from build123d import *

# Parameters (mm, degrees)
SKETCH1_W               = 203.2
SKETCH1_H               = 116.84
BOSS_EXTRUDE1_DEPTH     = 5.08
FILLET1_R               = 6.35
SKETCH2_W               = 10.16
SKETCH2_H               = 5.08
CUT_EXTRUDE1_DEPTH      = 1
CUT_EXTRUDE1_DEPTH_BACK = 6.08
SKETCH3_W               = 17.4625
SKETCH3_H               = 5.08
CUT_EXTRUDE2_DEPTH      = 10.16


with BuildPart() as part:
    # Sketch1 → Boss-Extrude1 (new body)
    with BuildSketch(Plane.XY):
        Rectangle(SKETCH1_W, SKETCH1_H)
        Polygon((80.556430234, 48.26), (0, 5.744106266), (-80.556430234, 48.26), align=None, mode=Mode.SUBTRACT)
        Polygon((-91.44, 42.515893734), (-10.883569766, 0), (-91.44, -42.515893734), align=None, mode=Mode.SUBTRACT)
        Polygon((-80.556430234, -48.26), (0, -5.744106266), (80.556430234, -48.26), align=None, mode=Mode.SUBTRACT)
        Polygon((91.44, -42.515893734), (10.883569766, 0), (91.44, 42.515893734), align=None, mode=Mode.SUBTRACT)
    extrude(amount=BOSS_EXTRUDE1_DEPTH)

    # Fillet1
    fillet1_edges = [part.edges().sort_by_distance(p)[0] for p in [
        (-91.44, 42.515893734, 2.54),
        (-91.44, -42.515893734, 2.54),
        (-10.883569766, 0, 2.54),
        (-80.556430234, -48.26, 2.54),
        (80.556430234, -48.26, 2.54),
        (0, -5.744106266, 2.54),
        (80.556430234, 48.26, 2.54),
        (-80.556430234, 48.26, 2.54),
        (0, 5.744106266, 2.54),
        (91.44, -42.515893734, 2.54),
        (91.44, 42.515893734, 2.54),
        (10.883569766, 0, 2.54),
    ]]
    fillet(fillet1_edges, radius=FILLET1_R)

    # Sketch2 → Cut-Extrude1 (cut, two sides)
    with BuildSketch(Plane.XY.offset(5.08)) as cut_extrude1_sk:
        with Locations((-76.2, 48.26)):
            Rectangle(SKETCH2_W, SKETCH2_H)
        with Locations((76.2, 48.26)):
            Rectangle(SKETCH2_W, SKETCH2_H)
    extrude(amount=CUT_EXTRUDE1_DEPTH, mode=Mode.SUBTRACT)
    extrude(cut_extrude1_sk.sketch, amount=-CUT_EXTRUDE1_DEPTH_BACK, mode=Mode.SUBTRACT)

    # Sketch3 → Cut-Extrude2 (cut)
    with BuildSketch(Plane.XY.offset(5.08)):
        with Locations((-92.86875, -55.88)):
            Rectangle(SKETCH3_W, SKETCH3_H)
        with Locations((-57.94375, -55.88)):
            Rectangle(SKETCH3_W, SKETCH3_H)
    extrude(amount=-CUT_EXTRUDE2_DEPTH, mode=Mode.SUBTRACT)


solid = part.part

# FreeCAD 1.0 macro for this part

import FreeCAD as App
import Part
import Sketcher
from FreeCAD import Vector
Q = App.Units.Quantity


def edges_at(feature, points):
    """Names of the edges that pass closest to the given points."""
    edges = feature.Shape.Edges
    near = lambda p: min(range(len(edges)), key=lambda i: edges[i].distToShape(Part.Vertex(*p))[0])
    return sorted({f"Edge{near(p) + 1}" for p in points})


def add_polygon(sketch, points):
    """Adds a closed chain of lines whose ends are joined by coincident constraints."""
    first, n = sketch.GeometryCount, len(points)
    for a, b in zip(points, points[1:] + points[:1]):
        sketch.addGeometry(Part.LineSegment(App.Vector(*a, 0), App.Vector(*b, 0)), False)
    for i in range(n):
        sketch.addConstraint(Sketcher.Constraint("Coincident", first + i, 2, first + (i + 1) % n, 1))

doc = App.newDocument("Part")
body = doc.addObject("PartDesign::Body", "Body")

# Sketch on XY plane
sketch1 = body.newObject("Sketcher::SketchObject", "Sketch")
sketch1.AttachmentSupport = (doc.getObject("XY_Plane"), [""])
sketch1.MapMode = "FlatFace"
add_polygon(sketch1, [(-102, 58), (-102, -58), (102, -58), (102, 58)])  # lines 0-3
add_polygon(sketch1, [(81, -48), (-81, -48), (0, -6)])  # lines 4-6
add_polygon(sketch1, [(-91, -43), (-91, 43), (-11, 0)])  # lines 7-9
add_polygon(sketch1, [(91, 43), (91, -43), (11, 0)])  # lines 10-12
add_polygon(sketch1, [(-81, 48), (81, 48), (0, 6)])  # lines 13-15
sketch1.addConstraint([
    Sketcher.Constraint("Vertical", 0),
    Sketcher.Constraint("Horizontal", 1),
    Sketcher.Constraint("Vertical", 2),
    Sketcher.Constraint("Horizontal", 3),
    Sketcher.Constraint("Horizontal", 4),
    Sketcher.Constraint("Vertical", 7),
    Sketcher.Constraint("Vertical", 10),
    Sketcher.Constraint("Horizontal", 13),
    Sketcher.Constraint("Symmetric", 0, 2, 2, 2, -1, 1),
    Sketcher.Constraint("Symmetric", 7, 2, 10, 2, -1, 1),
    Sketcher.Constraint("Symmetric", 8, 2, 11, 2, -1, 1),
    Sketcher.Constraint("Symmetric", 4, 2, 13, 2, -1, 1),
    Sketcher.Constraint("Symmetric", 5, 2, 14, 2, -1, 1),
    Sketcher.Constraint("PointOnObject", 5, 2, -2),
    Sketcher.Constraint("PointOnObject", 8, 2, -1),
    Sketcher.Constraint("Parallel", 6, 8),
    Sketcher.Constraint("Parallel", 5, 9),
    Sketcher.Constraint("Parallel", 9, 12),
    Sketcher.Constraint("Parallel", 11, 15),
    Sketcher.Constraint("Horizontal", 9, 2, 10, 2),
    Sketcher.Constraint("Equal", 6, 8),
    Sketcher.Constraint("DistanceX", 1, 1, 1, 2, Q("8 in")),
    Sketcher.Constraint("DistanceY", 0, 2, 0, 1, Q("4.6 in")),
    Sketcher.Constraint("DistanceY", 4, 2, -1, 1, Q("1.9 in")),
    Sketcher.Constraint("DistanceX", 7, 2, -1, 1, Q("3.6 in")),
    Sketcher.Constraint("DistanceX", 4, 2, 4, 1, 161.11286),
    Sketcher.Constraint("Distance", 5, 91.087539),
])
pad1 = body.newObject("PartDesign::Pad", "Pad")
pad1.Profile = sketch1
pad1.Length = Q("0.2 in")
doc.recompute()

fillet = body.newObject("PartDesign::Fillet", "Fillet")
fillet.Base = (pad1, edges_at(pad1, [
    (-91.44, 42.516, 2.54),
    (-91.44, -42.516, 2.54),
    (-10.884, 0, 2.54),
    (-80.556, -48.26, 2.54),
    (80.556, -48.26, 2.54),
    (0, -5.744, 2.54),
    (80.556, 48.26, 2.54),
    (-80.556, 48.26, 2.54),
    (0, 5.744, 2.54),
    (91.44, -42.516, 2.54),
    (91.44, 42.516, 2.54),
    (10.884, 0, 2.54),
]))
fillet.Radius = Q("0.25 in")

# Sketch on XY plane
sketch2 = body.newObject("Sketcher::SketchObject", "Sketch001")
sketch2.AttachmentSupport = (doc.getObject("XY_Plane"), [""])
sketch2.MapMode = "FlatFace"
sketch2.AttachmentOffset = App.Placement(Vector(0, 0, 0.2 * 25.4), App.Rotation())
add_polygon(sketch2, [(-81, 51), (-81, 46), (-71, 46), (-71, 51)])  # lines 0-3
add_polygon(sketch2, [(71, 51), (71, 46), (81, 46), (81, 51)])  # lines 4-7
sketch2.addConstraint([
    Sketcher.Constraint("Vertical", 0),
    Sketcher.Constraint("Horizontal", 1),
    Sketcher.Constraint("Vertical", 2),
    Sketcher.Constraint("Horizontal", 3),
    Sketcher.Constraint("Vertical", 4),
    Sketcher.Constraint("Horizontal", 5),
    Sketcher.Constraint("Vertical", 6),
    Sketcher.Constraint("Horizontal", 7),
    Sketcher.Constraint("Symmetric", 1, 2, 4, 2, -2),
    Sketcher.Constraint("Symmetric", 3, 2, 6, 2, -2),
    Sketcher.Constraint("DistanceX", 1, 1, 1, 2, Q("0.4 in")),
    Sketcher.Constraint("DistanceY", 0, 2, 0, 1, Q("0.2 in")),
    Sketcher.Constraint("DistanceY", -1, 1, 2, 2, Q("2 in")),
    Sketcher.Constraint("DistanceX", 0, 2, 4, 2, Q("6 in")),
])
pocket1 = body.newObject("PartDesign::Pocket", "Pocket")
pocket1.Profile = sketch2
pocket1.Type = "ThroughAll"
pocket1.Midplane = True

# Sketch on XY plane
sketch3 = body.newObject("Sketcher::SketchObject", "Sketch002")
sketch3.AttachmentSupport = (doc.getObject("XY_Plane"), [""])
sketch3.MapMode = "FlatFace"
sketch3.AttachmentOffset = App.Placement(Vector(0, 0, 0.2 * 25.4), App.Rotation())
add_polygon(sketch3, [(-102, -53), (-102, -58), (-84, -58), (-84, -53)])  # lines 0-3
add_polygon(sketch3, [(-67, -53), (-67, -58), (-49, -58), (-49, -53)])  # lines 4-7
sketch3.addConstraint([
    Sketcher.Constraint("Vertical", 0),
    Sketcher.Constraint("Horizontal", 1),
    Sketcher.Constraint("Vertical", 2),
    Sketcher.Constraint("Horizontal", 3),
    Sketcher.Constraint("Vertical", 4),
    Sketcher.Constraint("Horizontal", 5),
    Sketcher.Constraint("Vertical", 6),
    Sketcher.Constraint("Horizontal", 7),
    Sketcher.Constraint("Horizontal", 1, 2, 4, 2),
    Sketcher.Constraint("Horizontal", 3, 2, 6, 2),
    Sketcher.Constraint("Equal", 3, 5),
    Sketcher.Constraint("DistanceY", 0, 2, 0, 1, Q("0.2 in")),
    Sketcher.Constraint("DistanceX", 0, 2, -1, 1, Q("4 in")),
    Sketcher.Constraint("DistanceY", 0, 2, -1, 1, Q("2.3 in")),
    Sketcher.Constraint("DistanceX", 1, 1, 1, 2, Q("0.6875 in")),
    Sketcher.Constraint("DistanceX", 4, 2, -1, 1, Q("2.625 in")),
])
pocket2 = body.newObject("PartDesign::Pocket", "Pocket001")
pocket2.Profile = sketch3
pocket2.Length = Q("0.4 in")

doc.recompute()
